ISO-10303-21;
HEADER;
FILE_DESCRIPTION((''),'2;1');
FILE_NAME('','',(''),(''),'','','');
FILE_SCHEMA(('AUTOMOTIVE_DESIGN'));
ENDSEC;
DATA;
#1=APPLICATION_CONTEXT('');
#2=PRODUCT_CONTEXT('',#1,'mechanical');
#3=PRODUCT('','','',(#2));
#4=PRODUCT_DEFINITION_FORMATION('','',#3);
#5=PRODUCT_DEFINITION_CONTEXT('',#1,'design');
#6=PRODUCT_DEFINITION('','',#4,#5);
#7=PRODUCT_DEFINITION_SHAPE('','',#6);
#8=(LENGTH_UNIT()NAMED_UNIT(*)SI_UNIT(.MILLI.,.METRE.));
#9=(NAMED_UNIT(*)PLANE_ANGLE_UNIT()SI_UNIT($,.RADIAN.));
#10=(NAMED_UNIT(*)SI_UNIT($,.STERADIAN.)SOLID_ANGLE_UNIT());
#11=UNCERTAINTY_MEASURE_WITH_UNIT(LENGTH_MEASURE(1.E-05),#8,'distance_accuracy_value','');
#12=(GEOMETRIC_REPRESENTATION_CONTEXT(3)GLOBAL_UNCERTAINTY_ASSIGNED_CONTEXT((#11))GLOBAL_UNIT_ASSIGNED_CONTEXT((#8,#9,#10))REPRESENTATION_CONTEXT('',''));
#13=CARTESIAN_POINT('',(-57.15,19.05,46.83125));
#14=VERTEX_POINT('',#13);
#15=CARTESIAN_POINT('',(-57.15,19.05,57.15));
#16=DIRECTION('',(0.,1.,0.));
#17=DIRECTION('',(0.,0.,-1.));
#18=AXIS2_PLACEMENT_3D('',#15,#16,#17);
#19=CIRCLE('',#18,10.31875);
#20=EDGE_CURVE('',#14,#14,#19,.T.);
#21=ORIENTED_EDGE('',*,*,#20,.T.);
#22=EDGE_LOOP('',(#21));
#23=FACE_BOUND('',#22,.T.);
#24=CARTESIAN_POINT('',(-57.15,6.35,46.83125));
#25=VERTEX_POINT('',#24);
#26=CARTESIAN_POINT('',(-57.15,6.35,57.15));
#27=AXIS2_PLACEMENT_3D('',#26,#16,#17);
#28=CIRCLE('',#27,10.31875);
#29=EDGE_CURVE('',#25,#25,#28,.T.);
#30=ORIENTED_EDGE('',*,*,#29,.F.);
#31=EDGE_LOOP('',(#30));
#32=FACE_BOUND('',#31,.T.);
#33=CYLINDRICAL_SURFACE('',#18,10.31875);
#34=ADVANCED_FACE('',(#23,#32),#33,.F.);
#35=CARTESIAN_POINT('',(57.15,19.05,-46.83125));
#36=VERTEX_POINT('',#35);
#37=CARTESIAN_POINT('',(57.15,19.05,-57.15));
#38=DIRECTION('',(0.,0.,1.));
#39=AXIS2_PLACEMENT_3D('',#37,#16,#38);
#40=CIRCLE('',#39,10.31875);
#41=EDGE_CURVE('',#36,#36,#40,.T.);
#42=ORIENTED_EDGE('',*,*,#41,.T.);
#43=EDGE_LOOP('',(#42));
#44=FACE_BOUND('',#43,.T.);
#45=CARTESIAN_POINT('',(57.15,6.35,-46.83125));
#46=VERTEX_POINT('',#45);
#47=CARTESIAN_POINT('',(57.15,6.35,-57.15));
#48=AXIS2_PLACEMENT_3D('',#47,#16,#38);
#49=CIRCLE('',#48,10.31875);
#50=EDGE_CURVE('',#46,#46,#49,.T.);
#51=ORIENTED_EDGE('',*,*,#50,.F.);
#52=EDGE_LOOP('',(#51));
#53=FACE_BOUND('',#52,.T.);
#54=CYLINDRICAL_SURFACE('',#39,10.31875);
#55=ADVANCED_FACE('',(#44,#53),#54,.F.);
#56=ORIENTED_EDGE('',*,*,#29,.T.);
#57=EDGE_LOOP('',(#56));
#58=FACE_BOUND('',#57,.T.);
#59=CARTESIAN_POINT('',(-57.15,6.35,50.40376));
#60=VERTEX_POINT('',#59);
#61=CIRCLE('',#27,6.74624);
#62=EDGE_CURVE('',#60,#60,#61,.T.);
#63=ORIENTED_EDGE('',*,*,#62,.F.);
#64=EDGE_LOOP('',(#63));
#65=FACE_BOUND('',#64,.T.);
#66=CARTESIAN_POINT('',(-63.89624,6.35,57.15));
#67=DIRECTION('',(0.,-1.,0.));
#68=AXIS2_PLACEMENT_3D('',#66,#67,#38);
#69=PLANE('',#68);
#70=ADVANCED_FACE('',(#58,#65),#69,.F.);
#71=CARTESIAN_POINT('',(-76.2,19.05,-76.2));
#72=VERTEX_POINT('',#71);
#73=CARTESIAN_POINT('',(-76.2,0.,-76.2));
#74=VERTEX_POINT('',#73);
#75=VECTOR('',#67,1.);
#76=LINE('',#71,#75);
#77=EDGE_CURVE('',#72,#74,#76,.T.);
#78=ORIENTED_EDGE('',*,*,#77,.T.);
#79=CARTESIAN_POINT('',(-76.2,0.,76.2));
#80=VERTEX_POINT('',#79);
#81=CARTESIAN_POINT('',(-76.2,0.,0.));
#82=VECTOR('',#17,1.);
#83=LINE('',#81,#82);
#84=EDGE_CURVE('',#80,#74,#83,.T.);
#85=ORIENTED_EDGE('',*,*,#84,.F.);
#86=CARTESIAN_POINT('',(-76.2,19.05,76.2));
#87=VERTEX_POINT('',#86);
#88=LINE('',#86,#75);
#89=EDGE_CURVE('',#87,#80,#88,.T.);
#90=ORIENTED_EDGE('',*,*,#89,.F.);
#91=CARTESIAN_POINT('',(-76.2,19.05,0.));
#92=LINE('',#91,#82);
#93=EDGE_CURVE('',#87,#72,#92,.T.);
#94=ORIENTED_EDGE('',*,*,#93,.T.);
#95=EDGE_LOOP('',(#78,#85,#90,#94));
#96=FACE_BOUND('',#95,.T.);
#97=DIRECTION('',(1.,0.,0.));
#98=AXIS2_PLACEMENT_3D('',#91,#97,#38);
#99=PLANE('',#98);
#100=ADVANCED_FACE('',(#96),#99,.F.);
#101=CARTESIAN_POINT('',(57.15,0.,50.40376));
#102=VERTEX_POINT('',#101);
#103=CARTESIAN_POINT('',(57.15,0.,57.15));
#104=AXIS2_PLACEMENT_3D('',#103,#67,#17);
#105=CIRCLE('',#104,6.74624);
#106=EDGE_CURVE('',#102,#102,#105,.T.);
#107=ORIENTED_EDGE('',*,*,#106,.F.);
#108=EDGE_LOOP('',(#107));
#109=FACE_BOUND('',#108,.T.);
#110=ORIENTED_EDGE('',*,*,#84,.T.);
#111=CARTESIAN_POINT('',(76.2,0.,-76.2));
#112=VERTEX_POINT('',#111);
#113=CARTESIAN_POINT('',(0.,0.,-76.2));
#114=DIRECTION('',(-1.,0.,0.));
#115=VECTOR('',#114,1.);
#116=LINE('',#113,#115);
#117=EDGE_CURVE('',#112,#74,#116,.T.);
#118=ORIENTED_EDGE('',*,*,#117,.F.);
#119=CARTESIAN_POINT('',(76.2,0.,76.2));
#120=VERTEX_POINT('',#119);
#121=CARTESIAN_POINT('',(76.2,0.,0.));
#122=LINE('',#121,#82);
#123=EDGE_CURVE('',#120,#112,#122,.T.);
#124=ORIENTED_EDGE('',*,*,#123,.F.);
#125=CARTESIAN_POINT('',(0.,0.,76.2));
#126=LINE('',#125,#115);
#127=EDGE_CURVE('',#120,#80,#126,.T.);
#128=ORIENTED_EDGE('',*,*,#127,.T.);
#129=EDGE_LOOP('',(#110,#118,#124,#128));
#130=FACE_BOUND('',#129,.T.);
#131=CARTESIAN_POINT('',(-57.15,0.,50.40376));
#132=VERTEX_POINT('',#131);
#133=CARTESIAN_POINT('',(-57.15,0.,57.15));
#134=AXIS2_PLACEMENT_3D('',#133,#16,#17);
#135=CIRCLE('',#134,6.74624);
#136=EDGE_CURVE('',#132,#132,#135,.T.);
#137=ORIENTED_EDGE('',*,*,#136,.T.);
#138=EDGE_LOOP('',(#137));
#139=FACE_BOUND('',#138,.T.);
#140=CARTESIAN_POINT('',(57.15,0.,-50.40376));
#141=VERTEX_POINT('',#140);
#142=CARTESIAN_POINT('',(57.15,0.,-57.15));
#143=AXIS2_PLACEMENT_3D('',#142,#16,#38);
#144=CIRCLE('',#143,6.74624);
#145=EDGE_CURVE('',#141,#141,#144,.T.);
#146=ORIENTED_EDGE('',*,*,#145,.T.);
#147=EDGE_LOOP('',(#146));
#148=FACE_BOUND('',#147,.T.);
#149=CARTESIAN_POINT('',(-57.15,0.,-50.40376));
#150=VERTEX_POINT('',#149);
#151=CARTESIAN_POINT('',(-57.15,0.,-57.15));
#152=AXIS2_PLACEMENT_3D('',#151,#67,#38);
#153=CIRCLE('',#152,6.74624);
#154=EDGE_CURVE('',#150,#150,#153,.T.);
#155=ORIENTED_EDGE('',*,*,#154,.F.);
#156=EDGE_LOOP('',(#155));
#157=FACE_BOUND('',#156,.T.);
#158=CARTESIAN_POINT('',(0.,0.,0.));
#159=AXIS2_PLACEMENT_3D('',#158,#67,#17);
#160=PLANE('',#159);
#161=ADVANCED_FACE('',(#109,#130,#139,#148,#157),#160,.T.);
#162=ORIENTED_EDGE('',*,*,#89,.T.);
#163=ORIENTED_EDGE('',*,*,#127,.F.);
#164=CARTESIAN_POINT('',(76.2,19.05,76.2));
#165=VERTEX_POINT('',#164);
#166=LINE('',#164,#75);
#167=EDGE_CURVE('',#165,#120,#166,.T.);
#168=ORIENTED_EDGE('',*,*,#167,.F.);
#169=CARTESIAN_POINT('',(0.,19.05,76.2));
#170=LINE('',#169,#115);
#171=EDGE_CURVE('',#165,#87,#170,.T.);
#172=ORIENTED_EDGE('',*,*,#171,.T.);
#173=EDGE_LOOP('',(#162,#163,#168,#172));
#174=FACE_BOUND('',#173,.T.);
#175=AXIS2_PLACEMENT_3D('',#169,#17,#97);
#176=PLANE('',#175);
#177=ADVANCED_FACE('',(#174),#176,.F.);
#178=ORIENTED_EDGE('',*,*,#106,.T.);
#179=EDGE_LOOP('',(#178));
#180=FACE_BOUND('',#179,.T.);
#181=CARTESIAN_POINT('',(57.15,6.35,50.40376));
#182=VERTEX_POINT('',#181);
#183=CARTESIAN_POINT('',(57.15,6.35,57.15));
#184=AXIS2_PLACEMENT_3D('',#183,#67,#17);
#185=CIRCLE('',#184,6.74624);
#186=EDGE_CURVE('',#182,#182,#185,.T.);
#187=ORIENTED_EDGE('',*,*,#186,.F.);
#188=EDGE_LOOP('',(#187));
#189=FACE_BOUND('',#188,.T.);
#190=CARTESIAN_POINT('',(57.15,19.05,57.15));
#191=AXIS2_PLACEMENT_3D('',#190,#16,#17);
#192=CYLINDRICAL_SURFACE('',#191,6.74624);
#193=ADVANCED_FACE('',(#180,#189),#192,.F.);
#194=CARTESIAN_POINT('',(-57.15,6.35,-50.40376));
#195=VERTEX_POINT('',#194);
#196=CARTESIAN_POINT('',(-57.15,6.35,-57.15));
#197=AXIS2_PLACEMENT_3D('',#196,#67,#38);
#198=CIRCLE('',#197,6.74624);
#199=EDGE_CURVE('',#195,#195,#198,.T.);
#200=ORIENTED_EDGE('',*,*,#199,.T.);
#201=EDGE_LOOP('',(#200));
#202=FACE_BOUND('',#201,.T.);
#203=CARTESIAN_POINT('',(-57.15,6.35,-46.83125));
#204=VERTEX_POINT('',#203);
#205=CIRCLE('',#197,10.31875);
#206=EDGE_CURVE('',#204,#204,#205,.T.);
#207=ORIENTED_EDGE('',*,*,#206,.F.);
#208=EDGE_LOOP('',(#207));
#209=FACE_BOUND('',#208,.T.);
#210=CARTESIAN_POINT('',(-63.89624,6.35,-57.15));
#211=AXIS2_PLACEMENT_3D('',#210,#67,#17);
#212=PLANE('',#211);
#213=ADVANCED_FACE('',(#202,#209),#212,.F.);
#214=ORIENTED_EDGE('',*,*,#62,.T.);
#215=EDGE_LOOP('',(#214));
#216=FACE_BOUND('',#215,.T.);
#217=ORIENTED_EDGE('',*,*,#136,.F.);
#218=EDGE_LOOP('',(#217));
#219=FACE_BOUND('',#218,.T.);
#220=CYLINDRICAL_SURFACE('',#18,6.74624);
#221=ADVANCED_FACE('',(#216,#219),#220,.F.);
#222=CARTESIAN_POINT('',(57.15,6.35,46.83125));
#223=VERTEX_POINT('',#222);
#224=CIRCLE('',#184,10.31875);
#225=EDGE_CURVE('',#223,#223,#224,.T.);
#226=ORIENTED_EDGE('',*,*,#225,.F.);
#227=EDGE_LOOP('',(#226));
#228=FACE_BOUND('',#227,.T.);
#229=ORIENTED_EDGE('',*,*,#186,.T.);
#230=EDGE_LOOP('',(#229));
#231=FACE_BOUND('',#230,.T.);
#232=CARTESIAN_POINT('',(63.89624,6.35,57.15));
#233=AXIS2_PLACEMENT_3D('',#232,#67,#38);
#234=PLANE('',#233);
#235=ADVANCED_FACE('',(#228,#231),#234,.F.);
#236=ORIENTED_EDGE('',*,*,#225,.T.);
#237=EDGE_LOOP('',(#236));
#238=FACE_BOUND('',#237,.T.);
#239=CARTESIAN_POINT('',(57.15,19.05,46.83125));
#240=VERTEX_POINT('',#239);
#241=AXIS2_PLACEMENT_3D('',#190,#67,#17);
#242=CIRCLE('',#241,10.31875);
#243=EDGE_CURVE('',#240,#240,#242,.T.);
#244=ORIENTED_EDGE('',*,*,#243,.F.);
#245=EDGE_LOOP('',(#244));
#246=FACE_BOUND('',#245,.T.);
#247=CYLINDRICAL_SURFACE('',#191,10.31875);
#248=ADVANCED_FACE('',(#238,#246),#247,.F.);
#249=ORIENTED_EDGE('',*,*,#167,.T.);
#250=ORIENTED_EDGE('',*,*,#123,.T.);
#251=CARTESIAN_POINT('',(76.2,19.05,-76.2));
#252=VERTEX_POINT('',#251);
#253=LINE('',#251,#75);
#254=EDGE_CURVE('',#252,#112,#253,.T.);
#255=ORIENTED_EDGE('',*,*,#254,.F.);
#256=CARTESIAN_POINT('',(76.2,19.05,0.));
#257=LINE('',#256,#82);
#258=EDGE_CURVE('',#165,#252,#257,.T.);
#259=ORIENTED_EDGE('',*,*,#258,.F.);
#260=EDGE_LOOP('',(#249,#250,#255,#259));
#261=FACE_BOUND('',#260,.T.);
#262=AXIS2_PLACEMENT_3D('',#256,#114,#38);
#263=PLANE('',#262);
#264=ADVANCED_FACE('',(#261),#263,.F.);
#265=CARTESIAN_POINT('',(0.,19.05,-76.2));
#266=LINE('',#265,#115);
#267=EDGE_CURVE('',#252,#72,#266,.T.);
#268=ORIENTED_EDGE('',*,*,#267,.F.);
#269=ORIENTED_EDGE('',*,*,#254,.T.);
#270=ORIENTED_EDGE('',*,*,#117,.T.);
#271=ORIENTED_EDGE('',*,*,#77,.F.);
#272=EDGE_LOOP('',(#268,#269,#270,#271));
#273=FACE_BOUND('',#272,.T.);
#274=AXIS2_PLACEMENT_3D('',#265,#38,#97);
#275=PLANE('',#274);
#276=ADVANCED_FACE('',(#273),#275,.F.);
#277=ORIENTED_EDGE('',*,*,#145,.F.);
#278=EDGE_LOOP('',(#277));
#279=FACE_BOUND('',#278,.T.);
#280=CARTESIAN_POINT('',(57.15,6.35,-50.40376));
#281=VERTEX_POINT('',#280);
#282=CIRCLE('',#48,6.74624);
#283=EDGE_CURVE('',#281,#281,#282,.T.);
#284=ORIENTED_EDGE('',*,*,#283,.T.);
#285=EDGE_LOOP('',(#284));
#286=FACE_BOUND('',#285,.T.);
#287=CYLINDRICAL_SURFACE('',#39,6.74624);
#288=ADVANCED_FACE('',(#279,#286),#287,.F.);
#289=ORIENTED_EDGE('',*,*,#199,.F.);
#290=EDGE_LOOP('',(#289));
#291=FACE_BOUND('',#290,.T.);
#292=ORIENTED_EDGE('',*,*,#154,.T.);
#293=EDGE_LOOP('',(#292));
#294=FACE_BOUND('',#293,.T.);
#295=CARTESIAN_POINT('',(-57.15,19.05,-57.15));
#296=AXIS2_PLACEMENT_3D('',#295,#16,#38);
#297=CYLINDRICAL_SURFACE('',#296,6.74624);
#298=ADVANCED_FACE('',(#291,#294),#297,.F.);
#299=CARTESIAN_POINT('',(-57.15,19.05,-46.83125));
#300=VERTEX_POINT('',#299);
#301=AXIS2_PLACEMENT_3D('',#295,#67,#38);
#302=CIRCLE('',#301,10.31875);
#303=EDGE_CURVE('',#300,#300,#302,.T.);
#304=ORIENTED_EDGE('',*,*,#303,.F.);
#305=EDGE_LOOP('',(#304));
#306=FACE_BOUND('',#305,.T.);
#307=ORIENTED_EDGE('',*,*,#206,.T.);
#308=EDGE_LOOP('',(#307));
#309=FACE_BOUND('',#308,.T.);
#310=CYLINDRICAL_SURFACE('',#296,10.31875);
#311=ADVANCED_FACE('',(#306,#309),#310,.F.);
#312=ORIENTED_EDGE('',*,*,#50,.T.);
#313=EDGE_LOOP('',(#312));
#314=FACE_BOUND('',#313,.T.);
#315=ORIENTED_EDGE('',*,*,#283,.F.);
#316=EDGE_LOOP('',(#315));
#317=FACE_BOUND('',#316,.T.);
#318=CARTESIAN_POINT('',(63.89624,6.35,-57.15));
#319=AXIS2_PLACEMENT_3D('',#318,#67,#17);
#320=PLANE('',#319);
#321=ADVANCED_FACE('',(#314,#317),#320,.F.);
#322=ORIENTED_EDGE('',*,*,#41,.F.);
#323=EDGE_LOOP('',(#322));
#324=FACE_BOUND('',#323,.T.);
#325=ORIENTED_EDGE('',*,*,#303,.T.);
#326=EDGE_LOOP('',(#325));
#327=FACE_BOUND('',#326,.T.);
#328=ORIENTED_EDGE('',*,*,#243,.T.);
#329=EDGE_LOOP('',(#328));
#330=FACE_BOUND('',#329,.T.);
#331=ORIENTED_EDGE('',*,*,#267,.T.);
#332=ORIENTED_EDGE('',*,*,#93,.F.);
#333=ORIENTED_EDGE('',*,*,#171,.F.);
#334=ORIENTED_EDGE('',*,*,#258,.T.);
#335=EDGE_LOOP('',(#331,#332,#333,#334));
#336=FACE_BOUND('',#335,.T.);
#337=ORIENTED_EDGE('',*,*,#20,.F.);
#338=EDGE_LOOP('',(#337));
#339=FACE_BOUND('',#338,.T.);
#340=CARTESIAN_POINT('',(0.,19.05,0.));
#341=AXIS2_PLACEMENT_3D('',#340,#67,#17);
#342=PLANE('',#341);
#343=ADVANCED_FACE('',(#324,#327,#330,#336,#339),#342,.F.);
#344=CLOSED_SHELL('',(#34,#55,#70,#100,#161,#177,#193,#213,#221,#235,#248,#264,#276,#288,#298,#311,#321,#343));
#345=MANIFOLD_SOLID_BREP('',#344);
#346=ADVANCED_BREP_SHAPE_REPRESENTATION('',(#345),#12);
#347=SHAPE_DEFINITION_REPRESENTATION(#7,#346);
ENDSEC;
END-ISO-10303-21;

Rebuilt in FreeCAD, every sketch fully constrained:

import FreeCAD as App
import Part
import Sketcher

V = App.Vector
Q = App.Units.Quantity

doc = App.newDocument("Part")
body = doc.addObject("PartDesign::Body", "Body")

sketch1 = doc.addObject("Sketcher::SketchObject", "Sketch")
body.addObject(sketch1)
sketch1.AttachmentSupport = (doc.XZ_Plane, [""])
sketch1.MapMode = "FlatFace"
sketch1.addGeometry([
    Part.LineSegment(V(0, -76, 0), V(0, 0, 0)),
    Part.LineSegment(V(0, 0, 0), V(76, 0, 0)),
    Part.LineSegment(V(76, 0, 0), V(76, -76, 0)),
    Part.LineSegment(V(76, -76, 0), V(0, -76, 0)),
], False)
sketch1.addConstraint([
    Sketcher.Constraint("Coincident", 0, 2, 1, 1),
    Sketcher.Constraint("Coincident", 1, 2, 2, 1),
    Sketcher.Constraint("Coincident", 2, 2, 3, 1),
    Sketcher.Constraint("Coincident", 3, 2, 0, 1),
    Sketcher.Constraint("Vertical", 0),
    Sketcher.Constraint("Horizontal", 1),
    Sketcher.Constraint("Vertical", 2),
    Sketcher.Constraint("Horizontal", 3),
    Sketcher.Constraint("Coincident", 0, 2, -1, 1),
    Sketcher.Constraint("Equal", 3, 0),
    Sketcher.Constraint("DistanceX", 1, 1, 1, 2, Q("3 in")),
])
pad1 = doc.addObject("PartDesign::Pad", "Pad")
body.addObject(pad1)
pad1.Profile = sketch1
pad1.Length = Q("0.75 in")
pad1.Reversed = True

sketch2 = doc.addObject("Sketcher::SketchObject", "Sketch001")
body.addObject(sketch2)
sketch2.AttachmentSupport = (doc.XZ_Plane, [""])
sketch2.MapMode = "FlatFace"
sketch2.AttachmentOffset = App.Placement(V(0, 0, -0.75 * 25.4), App.Rotation())
sketch2.addGeometry(Part.Circle(V(57, -57, 0), V(0, 0, 1), 7), False)
sketch2.addConstraint([
    Sketcher.Constraint("Diameter", 0, Q("0.5312 in")),
    Sketcher.Constraint("DistanceX", -1, 1, 0, 3, Q("2.25 in")),
    Sketcher.Constraint("DistanceY", 0, 3, -1, 1, Q("2.25 in")),
])
doc.recompute()
hole = doc.addObject("PartDesign::Hole", "Hole")
body.addObject(hole)
hole.Profile = sketch2
hole.ThreadType = "None"
hole.Diameter = Q("0.5312 in")
hole.DepthType = "ThroughAll"
hole.HoleCutType = "Counterbore"
hole.HoleCutDiameter = Q("0.8125 in")
hole.HoleCutDepth = Q("0.5 in")
hole.Reversed = True
body2 = doc.addObject("PartDesign::Body", "Body001")
doc.recompute()

body2.BaseFeature = body
doc.recompute()

mirroring = doc.addObject("Part::Mirroring", "Mirroring")
mirroring.Source = body
mirroring.Base = V(0, 19.05, 0)
mirroring.Normal = V(0, 0, -1)
body3 = doc.addObject("PartDesign::Body", "Body002")
body3.BaseFeature = mirroring
boolean = doc.addObject("PartDesign::Boolean", "Boolean")
body2.addObject(boolean)
boolean.Type = "Fuse"
boolean.addObjects([body3])
doc.recompute()
body4 = doc.addObject("PartDesign::Body", "Body003")
doc.recompute()

body4.BaseFeature = body2
doc.recompute()

mirroring2 = doc.addObject("Part::Mirroring", "Mirroring001")
mirroring2.Source = body2
mirroring2.Base = V(0, 19.05, 0)
mirroring2.Normal = V(1, 0, 0)
body5 = doc.addObject("PartDesign::Body", "Body004")
body5.BaseFeature = mirroring2
boolean2 = doc.addObject("PartDesign::Boolean", "Boolean001")
body4.addObject(boolean2)
boolean2.Type = "Fuse"
boolean2.addObjects([body5])
doc.recompute()
mirroring.Visibility = False
mirroring2.Visibility = False

doc.recompute()
